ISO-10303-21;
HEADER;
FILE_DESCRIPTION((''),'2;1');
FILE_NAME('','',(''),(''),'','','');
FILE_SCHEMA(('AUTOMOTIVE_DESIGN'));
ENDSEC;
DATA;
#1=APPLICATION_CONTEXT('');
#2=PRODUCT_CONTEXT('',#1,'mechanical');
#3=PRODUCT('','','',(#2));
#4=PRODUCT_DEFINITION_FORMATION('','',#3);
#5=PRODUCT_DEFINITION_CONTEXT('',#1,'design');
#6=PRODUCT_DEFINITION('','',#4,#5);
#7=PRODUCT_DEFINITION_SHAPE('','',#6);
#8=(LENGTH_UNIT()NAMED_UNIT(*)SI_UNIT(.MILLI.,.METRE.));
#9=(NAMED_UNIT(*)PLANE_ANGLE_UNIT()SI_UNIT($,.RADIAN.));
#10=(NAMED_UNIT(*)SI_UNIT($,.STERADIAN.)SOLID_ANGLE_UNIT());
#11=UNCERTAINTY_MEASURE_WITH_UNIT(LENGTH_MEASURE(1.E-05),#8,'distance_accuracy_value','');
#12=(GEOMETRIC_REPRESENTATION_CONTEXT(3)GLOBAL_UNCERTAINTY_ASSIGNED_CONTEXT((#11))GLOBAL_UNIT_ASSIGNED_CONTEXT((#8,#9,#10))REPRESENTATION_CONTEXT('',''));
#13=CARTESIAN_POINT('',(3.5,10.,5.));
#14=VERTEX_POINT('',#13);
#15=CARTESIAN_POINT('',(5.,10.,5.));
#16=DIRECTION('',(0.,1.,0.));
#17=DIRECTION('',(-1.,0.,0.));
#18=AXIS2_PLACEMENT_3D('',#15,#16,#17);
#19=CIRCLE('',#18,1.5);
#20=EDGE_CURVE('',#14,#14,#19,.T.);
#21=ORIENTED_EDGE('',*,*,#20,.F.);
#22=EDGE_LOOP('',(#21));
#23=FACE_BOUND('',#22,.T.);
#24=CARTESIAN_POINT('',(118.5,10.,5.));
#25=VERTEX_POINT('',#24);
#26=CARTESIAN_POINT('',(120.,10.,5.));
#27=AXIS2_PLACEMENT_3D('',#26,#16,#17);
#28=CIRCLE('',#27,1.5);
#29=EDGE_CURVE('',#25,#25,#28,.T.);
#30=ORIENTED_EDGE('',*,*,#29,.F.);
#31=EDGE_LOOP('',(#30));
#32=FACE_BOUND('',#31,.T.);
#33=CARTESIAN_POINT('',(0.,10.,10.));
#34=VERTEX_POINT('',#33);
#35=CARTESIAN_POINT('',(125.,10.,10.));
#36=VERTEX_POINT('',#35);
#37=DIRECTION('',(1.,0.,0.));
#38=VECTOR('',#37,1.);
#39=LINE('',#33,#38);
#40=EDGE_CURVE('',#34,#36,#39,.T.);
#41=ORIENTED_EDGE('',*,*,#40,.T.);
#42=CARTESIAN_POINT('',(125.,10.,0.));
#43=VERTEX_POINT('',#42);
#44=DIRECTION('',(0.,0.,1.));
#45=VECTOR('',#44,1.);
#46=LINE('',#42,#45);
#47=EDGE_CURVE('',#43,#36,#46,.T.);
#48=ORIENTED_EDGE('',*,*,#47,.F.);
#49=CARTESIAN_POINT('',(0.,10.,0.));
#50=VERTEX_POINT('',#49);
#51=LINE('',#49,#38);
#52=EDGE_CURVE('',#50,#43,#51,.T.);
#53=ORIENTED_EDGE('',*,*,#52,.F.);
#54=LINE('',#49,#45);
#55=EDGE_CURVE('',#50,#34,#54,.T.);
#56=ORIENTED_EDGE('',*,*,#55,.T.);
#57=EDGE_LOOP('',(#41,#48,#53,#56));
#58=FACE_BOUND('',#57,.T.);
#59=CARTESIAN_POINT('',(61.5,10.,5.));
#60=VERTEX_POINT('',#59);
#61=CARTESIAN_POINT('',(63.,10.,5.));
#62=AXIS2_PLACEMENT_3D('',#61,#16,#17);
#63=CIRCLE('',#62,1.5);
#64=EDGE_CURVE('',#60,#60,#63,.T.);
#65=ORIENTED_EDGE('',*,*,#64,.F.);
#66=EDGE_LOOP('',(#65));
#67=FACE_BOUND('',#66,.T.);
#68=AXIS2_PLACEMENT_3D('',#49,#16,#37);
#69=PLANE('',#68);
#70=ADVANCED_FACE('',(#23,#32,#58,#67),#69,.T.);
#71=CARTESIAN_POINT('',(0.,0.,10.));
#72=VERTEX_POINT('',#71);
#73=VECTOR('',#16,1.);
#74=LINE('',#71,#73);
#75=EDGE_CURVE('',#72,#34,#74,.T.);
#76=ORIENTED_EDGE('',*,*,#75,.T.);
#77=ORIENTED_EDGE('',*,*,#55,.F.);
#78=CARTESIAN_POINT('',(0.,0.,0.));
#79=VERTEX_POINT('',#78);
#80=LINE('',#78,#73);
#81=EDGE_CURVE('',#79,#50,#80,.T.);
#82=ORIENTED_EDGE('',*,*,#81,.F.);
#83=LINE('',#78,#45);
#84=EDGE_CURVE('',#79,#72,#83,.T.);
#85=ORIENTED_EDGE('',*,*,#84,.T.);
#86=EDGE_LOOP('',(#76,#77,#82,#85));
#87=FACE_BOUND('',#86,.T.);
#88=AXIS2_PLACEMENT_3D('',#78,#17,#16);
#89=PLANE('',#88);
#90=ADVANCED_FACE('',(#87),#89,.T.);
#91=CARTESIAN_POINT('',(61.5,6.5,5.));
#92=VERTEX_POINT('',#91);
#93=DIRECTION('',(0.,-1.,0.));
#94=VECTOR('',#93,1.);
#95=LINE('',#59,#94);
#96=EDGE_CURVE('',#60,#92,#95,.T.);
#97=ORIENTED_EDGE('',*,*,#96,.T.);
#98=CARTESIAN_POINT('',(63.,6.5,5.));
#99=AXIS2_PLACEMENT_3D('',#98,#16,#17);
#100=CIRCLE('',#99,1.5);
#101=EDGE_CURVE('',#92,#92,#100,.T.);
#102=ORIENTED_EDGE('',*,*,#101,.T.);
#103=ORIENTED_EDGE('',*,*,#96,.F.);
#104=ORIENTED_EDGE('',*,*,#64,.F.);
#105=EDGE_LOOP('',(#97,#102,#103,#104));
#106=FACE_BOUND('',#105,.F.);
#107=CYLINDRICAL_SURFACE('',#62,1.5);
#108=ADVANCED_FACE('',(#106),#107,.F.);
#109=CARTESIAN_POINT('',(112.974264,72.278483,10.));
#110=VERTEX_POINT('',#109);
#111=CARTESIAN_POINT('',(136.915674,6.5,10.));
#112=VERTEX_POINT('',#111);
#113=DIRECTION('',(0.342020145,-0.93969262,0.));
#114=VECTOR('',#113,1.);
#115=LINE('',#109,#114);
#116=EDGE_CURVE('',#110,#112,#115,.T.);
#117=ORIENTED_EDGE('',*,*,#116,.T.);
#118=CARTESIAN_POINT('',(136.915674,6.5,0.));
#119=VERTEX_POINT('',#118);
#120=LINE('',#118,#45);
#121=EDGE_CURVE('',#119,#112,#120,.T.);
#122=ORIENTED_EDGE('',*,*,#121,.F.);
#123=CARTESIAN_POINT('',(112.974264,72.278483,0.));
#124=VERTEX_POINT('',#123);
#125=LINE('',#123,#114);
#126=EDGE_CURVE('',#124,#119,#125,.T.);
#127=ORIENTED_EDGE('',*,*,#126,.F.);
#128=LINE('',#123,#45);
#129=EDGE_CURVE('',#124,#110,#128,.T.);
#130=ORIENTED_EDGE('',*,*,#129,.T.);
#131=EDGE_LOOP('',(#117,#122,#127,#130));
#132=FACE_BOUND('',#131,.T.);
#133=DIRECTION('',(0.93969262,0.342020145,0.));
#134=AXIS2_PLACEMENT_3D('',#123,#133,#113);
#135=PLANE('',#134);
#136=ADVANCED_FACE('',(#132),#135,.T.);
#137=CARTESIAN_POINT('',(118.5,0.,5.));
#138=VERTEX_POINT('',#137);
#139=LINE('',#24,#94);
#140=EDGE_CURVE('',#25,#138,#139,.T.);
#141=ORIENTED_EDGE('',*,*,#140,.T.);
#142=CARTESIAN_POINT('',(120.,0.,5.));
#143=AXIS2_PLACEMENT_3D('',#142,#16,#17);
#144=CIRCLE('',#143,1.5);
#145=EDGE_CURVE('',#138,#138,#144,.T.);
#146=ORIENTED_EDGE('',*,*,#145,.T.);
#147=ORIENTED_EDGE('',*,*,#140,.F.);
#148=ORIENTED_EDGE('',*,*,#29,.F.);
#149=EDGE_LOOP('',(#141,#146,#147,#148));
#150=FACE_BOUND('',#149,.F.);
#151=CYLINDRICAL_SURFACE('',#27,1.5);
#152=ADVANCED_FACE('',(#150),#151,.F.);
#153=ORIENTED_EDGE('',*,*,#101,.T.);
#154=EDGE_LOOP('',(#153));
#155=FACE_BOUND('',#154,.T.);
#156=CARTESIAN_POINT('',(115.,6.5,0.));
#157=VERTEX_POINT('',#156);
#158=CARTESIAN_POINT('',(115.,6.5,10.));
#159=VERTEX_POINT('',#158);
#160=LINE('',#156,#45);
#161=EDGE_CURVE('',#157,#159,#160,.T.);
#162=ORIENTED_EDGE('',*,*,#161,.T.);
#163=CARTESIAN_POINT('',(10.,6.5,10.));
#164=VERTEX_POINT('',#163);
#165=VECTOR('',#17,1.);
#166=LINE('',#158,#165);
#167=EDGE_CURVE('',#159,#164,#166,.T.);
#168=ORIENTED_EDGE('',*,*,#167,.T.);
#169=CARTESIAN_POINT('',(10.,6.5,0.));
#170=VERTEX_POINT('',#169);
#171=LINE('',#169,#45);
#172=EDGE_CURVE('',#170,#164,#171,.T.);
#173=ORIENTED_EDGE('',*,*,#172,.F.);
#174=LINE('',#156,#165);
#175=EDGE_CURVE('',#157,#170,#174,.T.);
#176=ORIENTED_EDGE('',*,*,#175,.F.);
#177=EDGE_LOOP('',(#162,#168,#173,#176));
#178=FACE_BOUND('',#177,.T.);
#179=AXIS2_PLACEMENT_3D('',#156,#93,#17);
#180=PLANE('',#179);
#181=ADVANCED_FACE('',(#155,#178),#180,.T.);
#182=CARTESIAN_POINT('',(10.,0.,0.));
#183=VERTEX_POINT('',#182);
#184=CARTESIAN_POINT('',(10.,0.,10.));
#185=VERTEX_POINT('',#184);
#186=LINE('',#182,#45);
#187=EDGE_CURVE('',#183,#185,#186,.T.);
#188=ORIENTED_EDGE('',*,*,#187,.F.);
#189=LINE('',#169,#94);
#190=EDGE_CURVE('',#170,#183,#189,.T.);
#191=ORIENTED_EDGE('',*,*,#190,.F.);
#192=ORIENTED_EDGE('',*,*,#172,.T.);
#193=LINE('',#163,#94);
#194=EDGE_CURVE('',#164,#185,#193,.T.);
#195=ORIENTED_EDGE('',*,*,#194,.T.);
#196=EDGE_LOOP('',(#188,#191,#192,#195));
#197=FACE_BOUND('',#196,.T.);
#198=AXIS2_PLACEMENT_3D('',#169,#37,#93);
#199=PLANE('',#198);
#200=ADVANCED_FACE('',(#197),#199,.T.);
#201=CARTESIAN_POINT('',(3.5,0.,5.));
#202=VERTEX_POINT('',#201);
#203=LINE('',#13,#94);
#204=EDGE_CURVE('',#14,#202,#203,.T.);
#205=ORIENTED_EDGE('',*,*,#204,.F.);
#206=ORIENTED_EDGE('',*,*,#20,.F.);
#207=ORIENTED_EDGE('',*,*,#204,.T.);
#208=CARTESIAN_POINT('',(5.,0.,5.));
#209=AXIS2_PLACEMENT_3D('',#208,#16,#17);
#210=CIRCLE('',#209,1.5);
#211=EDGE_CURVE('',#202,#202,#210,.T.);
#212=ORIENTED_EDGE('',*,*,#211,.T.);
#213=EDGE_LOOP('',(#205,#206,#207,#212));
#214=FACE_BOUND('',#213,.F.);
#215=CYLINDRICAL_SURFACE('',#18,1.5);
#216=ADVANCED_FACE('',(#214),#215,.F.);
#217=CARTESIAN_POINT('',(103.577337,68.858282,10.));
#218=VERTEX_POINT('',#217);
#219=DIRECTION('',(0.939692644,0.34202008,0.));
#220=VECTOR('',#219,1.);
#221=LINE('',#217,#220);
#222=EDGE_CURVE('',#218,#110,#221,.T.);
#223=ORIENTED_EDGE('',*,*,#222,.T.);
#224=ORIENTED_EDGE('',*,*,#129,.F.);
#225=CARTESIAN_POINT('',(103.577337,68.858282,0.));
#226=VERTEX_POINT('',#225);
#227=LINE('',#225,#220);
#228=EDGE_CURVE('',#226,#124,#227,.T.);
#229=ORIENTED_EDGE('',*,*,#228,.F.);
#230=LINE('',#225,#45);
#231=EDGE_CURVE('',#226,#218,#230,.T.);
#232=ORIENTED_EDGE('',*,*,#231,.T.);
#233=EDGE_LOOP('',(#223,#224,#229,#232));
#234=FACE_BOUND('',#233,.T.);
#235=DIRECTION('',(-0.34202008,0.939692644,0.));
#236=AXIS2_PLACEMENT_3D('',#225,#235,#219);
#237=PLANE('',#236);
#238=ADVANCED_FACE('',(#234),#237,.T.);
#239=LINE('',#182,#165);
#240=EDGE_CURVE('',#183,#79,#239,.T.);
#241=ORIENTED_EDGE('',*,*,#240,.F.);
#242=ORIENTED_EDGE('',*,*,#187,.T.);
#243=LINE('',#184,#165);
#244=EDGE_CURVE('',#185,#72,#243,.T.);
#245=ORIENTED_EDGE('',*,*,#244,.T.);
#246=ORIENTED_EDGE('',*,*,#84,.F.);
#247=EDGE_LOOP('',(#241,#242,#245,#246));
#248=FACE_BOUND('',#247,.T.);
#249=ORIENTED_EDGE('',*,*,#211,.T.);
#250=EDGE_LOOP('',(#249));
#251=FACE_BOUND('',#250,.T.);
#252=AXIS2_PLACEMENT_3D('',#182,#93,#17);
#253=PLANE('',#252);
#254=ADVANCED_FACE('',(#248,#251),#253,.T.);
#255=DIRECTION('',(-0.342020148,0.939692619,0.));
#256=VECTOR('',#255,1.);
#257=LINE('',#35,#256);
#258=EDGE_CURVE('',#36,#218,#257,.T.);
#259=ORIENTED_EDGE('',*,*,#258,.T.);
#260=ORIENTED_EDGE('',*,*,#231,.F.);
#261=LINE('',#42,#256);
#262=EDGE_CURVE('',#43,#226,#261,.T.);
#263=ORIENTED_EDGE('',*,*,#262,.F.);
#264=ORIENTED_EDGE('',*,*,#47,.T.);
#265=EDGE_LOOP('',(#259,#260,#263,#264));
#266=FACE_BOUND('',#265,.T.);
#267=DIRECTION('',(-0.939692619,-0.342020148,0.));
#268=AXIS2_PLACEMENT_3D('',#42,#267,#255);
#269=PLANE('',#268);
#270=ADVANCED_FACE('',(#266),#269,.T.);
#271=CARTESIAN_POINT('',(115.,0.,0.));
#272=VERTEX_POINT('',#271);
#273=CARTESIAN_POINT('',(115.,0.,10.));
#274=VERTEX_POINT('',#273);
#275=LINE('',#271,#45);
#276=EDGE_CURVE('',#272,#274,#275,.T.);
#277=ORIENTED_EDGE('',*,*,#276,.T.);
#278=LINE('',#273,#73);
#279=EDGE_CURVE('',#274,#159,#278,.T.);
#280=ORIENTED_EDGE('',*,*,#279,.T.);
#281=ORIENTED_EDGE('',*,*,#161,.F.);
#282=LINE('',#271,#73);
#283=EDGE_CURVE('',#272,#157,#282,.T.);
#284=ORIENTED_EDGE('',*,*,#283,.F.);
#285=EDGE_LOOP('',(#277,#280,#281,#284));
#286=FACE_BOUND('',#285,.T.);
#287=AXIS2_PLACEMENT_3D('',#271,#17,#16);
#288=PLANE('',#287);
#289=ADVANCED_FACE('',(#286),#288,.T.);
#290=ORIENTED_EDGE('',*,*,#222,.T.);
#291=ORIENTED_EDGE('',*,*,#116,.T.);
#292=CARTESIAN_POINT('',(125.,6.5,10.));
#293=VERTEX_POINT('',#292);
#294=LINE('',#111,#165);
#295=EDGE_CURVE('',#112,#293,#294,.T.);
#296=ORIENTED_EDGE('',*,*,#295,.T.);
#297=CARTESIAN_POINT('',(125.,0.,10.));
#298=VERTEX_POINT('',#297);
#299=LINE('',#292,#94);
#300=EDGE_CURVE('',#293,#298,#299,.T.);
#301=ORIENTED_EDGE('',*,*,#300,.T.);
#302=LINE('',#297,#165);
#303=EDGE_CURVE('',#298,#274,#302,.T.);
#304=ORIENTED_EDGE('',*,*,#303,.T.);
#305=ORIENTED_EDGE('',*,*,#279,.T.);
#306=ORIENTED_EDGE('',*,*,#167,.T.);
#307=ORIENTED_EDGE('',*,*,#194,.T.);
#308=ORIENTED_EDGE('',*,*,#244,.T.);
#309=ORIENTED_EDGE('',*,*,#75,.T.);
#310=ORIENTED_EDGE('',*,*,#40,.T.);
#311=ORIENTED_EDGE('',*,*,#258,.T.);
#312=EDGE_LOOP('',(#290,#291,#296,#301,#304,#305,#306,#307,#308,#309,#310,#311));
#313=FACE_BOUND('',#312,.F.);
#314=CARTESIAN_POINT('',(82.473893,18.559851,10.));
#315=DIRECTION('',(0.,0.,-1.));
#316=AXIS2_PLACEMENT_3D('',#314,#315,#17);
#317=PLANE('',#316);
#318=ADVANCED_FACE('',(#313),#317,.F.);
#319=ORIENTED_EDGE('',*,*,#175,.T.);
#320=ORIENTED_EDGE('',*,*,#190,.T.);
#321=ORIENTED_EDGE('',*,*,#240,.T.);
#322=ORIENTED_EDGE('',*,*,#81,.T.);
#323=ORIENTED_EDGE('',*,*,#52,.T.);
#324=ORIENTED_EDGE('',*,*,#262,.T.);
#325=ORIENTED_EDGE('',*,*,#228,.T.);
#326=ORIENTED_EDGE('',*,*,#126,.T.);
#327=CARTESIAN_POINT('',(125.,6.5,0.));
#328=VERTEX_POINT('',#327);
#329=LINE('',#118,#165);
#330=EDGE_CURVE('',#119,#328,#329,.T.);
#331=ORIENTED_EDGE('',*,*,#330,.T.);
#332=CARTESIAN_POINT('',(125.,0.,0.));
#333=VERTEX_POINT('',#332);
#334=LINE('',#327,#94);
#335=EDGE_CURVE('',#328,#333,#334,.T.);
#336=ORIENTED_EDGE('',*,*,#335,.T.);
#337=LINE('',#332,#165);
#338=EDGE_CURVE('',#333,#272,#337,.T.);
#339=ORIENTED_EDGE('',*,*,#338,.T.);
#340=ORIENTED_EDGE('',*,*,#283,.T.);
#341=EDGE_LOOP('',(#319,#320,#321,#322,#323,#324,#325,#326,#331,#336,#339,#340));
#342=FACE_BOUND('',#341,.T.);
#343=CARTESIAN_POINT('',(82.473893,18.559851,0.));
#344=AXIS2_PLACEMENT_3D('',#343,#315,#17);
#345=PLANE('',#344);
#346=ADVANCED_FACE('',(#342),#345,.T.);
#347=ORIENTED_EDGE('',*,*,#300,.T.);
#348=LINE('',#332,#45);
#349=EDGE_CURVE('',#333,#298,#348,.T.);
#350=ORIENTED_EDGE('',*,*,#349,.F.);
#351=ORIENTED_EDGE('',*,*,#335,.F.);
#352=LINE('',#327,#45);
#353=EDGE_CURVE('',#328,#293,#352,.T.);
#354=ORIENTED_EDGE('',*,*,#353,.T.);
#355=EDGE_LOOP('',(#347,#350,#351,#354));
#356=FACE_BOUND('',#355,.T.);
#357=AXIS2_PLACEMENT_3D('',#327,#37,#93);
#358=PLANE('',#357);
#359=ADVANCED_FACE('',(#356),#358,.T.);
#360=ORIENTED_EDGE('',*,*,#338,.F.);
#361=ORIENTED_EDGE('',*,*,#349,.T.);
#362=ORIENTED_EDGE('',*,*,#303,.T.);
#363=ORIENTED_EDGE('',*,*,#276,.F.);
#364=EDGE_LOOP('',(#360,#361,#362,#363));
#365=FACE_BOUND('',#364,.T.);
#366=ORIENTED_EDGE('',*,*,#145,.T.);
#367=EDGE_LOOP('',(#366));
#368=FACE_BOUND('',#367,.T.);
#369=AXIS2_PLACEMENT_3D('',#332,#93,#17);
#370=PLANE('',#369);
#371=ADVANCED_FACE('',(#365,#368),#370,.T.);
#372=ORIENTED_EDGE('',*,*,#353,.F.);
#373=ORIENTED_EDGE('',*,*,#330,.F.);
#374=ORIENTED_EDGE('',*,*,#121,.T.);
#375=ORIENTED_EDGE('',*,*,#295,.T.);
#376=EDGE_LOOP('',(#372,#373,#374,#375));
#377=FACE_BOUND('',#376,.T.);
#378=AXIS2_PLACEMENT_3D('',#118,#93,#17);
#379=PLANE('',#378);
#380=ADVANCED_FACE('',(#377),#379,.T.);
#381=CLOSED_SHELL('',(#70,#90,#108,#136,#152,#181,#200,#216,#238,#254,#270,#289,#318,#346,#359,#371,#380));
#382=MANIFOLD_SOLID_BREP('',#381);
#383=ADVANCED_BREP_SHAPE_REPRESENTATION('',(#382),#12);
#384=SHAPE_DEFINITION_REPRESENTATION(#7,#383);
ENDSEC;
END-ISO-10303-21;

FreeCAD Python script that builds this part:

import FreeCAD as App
import Part
import Sketcher
Q = App.Units.Quantity

doc = App.newDocument("Part")
params = doc.addObject("Spreadsheet::Sheet", "Params")
for row, (alias, value) in enumerate([
    ("sketch1_width", "10 mm"),
    ("sketch1_width2", "105 mm"),
    ("sketch1_length", "70 mm"),
    ("sketch1_length2", "10.000001 mm"),
    ("sketch1_height", "6.5 mm"),
    ("pad1_length", "10 mm"),
    ("sketch2_diameter", "3 mm"),
], start=1):
    params.set(f"A{row}", alias)
    params.set(f"B{row}", "=" + value)
    params.setAlias(f"B{row}", alias)

body = doc.addObject("PartDesign::Body", "Body")

sketch1 = body.newObject("Sketcher::SketchObject", "Sketch")
sketch1.AttachmentSupport = (doc.getObject("XY_Plane"), [""])
sketch1.MapMode = "FlatFace"
sketch1.addGeometry(Part.LineSegment(App.Vector(0, 10, 0), App.Vector(0, 0, 0)), False)
sketch1.addGeometry(Part.LineSegment(App.Vector(0, 0, 0), App.Vector(10, 0, 0)), False)
sketch1.addGeometry(Part.LineSegment(App.Vector(10, 0, 0), App.Vector(10, 6.5, 0)), False)
sketch1.addGeometry(Part.LineSegment(App.Vector(10, 6.5, 0), App.Vector(115, 6.5, 0)), False)
sketch1.addGeometry(Part.LineSegment(App.Vector(115, 6.5, 0), App.Vector(115, 0, 0)), False)
sketch1.addGeometry(Part.LineSegment(App.Vector(115, 0, 0), App.Vector(125, 0, 0)), False)
sketch1.addGeometry(Part.LineSegment(App.Vector(125, 0, 0), App.Vector(125, 6.5, 0)), False)
sketch1.addGeometry(Part.LineSegment(App.Vector(125, 6.5, 0), App.Vector(136.915674, 6.5, 0)), False)
sketch1.addGeometry(Part.LineSegment(App.Vector(136.915674, 6.5, 0), App.Vector(112.974264, 72.278483, 0)), False)
sketch1.addGeometry(Part.LineSegment(App.Vector(112.974264, 72.278483, 0), App.Vector(103.577337, 68.858282, 0)), False)
sketch1.addGeometry(Part.LineSegment(App.Vector(103.577337, 68.858282, 0), App.Vector(125, 10, 0)), False)
sketch1.addGeometry(Part.LineSegment(App.Vector(125, 10, 0), App.Vector(0, 10, 0)), False)
sketch1.addConstraint(Sketcher.Constraint("Coincident", 0, 2, 1, 1))
sketch1.addConstraint(Sketcher.Constraint("Coincident", 1, 2, 2, 1))
sketch1.addConstraint(Sketcher.Constraint("Coincident", 2, 2, 3, 1))
sketch1.addConstraint(Sketcher.Constraint("Coincident", 3, 2, 4, 1))
sketch1.addConstraint(Sketcher.Constraint("Coincident", 4, 2, 5, 1))
sketch1.addConstraint(Sketcher.Constraint("Coincident", 5, 2, 6, 1))
sketch1.addConstraint(Sketcher.Constraint("Coincident", 6, 2, 7, 1))
sketch1.addConstraint(Sketcher.Constraint("Coincident", 7, 2, 8, 1))
sketch1.addConstraint(Sketcher.Constraint("Coincident", 8, 2, 9, 1))
sketch1.addConstraint(Sketcher.Constraint("Coincident", 9, 2, 10, 1))
sketch1.addConstraint(Sketcher.Constraint("Coincident", 10, 2, 11, 1))
sketch1.addConstraint(Sketcher.Constraint("Coincident", 11, 2, 0, 1))
sketch1.addConstraint(Sketcher.Constraint("Vertical", 0))
sketch1.addConstraint(Sketcher.Constraint("Horizontal", 1))
sketch1.addConstraint(Sketcher.Constraint("Vertical", 2))
sketch1.addConstraint(Sketcher.Constraint("Horizontal", 3))
sketch1.addConstraint(Sketcher.Constraint("Vertical", 4))
sketch1.addConstraint(Sketcher.Constraint("Horizontal", 5))
sketch1.addConstraint(Sketcher.Constraint("Vertical", 6))
sketch1.addConstraint(Sketcher.Constraint("Horizontal", 7))
sketch1.addConstraint(Sketcher.Constraint("Horizontal", 11))
sketch1.addConstraint(Sketcher.Constraint("Coincident", 0, 2, -1, 1))
sketch1.addConstraint(Sketcher.Constraint("PointOnObject", 4, 2, -1))
sketch1.addConstraint(Sketcher.Constraint("Perpendicular", 8, 9))
sketch1.addConstraint(Sketcher.Constraint("Perpendicular", 9, 10))
sketch1.addConstraint(Sketcher.Constraint("Horizontal", 3, 2, 6, 2))
sketch1.addConstraint(Sketcher.Constraint("Vertical", 6, 2, 10, 2))
sketch1.addConstraint(Sketcher.Constraint("Equal", 1, 5))
sketch1.addConstraint(Sketcher.Constraint("Equal", 5, 0))
sketch1.addConstraint(Sketcher.Constraint("DistanceX", 1, 1, 1, 2, 10.0))
sketch1.addConstraint(Sketcher.Constraint("DistanceX", 3, 1, 3, 2, 105.0))
sketch1.addConstraint(Sketcher.Constraint("Angle", 8, Q("110 deg")))
sketch1.addConstraint(Sketcher.Constraint("Distance", 8, 70.0))
sketch1.addConstraint(Sketcher.Constraint("Distance", 9, 10.000001))
sketch1.addConstraint(Sketcher.Constraint("DistanceY", 2, 1, 2, 2, 6.5))
sketch1.setExpression("Constraints[29]", "Params.sketch1_width")
sketch1.setExpression("Constraints[30]", "Params.sketch1_width2")
sketch1.setExpression("Constraints[32]", "Params.sketch1_length")
sketch1.setExpression("Constraints[33]", "Params.sketch1_length2")
sketch1.setExpression("Constraints[34]", "Params.sketch1_height")
pad1 = body.newObject("PartDesign::Pad", "Pad")
pad1.Profile = sketch1
pad1.setExpression("Length", "Params.pad1_length")

sketch2 = body.newObject("Sketcher::SketchObject", "Sketch001")
sketch2.AttachmentSupport = (doc.getObject("XZ_Plane"), [""])
sketch2.MapMode = "FlatFace"
sketch2.AttachmentOffset = App.Placement(App.Vector(0, 0, -10), App.Rotation())
sketch2.addGeometry(Part.Circle(App.Vector(5, 5, 0), App.Vector(0, 0, 1), 1.5), False)
sketch2.addGeometry(Part.Circle(App.Vector(120, 5, 0), App.Vector(0, 0, 1), 1.5), False)
sketch2.addGeometry(Part.Circle(App.Vector(63, 5, 0), App.Vector(0, 0, 1), 1.5), False)
sketch2.addConstraint(Sketcher.Constraint("Equal", 0, 1))
sketch2.addConstraint(Sketcher.Constraint("Equal", 1, 2))
sketch2.addConstraint(Sketcher.Constraint("Horizontal", 0, 3, 1, 3))
sketch2.addConstraint(Sketcher.Constraint("Horizontal", 1, 3, 2, 3))
sketch2.addConstraint(Sketcher.Constraint("Diameter", 0, 3.0))
sketch2.addConstraint(Sketcher.Constraint("DistanceX", -1, 1, 0, 3, 5.0))
sketch2.addConstraint(Sketcher.Constraint("DistanceY", -1, 1, 0, 3, 5.0))
sketch2.addConstraint(Sketcher.Constraint("DistanceX", -1, 1, 1, 3, 120.0))
sketch2.addConstraint(Sketcher.Constraint("DistanceX", -1, 1, 2, 3, 63.0))
sketch2.setExpression("Constraints[4]", "Params.sketch2_diameter")
pocket1 = body.newObject("PartDesign::Pocket", "Pocket")
pocket1.Profile = sketch2
pocket1.Type = "ThroughAll"
pocket1.Reversed = True

doc.recompute()
